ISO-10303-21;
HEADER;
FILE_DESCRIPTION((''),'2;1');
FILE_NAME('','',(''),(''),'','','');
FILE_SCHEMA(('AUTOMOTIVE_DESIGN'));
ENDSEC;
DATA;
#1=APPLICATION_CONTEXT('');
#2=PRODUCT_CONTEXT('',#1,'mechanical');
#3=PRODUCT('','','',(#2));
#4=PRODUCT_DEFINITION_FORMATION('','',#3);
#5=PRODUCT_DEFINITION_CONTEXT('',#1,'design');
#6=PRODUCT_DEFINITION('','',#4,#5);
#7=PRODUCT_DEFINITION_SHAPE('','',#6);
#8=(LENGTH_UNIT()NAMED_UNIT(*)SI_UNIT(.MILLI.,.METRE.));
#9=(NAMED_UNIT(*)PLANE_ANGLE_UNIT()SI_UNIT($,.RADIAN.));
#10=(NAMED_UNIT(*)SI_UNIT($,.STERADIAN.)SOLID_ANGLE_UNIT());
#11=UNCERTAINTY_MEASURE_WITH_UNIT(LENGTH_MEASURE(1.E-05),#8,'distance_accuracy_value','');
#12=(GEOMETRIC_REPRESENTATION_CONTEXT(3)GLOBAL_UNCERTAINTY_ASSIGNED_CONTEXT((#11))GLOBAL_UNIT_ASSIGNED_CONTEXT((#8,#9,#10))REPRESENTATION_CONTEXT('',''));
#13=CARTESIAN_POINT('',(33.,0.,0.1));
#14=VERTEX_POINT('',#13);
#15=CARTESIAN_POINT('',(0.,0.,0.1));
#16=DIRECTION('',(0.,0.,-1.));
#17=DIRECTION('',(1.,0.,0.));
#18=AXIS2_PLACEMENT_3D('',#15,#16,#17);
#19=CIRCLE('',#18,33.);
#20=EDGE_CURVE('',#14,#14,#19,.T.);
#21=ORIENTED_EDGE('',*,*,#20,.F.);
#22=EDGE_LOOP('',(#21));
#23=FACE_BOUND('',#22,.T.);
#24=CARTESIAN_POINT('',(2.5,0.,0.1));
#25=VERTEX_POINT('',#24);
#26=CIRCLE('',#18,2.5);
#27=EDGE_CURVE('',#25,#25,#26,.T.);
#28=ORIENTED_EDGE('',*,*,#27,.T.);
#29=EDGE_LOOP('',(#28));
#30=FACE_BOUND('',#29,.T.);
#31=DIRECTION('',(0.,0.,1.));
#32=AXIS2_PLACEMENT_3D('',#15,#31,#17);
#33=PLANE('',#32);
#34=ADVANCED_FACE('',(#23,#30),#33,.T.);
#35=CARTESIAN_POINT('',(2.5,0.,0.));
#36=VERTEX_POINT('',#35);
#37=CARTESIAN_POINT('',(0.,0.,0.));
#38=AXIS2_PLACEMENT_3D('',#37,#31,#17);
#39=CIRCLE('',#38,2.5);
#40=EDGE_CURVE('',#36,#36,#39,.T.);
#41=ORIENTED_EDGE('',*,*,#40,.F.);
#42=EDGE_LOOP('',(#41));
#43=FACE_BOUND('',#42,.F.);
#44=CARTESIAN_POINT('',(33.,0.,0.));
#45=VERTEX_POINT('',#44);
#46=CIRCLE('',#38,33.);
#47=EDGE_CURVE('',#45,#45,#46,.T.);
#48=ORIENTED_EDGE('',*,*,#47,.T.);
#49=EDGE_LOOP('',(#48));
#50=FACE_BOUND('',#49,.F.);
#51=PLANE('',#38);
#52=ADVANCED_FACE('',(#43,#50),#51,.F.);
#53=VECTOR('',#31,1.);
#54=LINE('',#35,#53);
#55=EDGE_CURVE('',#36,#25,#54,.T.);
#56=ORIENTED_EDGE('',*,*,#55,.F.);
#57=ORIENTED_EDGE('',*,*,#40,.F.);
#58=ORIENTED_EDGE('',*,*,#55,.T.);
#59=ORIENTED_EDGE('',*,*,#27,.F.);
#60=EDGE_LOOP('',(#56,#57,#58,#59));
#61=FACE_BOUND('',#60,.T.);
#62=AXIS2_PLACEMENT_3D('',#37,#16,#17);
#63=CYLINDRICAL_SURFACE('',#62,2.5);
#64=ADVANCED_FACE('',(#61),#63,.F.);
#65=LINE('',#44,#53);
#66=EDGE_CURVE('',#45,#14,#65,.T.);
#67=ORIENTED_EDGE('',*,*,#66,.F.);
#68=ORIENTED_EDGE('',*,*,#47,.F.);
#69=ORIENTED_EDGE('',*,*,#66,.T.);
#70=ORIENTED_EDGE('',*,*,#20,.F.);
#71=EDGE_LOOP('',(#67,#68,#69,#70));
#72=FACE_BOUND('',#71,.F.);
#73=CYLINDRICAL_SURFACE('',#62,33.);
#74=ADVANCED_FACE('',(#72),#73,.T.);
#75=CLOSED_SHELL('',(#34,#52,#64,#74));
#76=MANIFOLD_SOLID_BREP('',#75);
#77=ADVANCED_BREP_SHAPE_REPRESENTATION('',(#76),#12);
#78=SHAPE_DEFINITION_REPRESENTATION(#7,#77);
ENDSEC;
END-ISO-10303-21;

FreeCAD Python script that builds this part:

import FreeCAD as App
import Part
import Sketcher
from FreeCAD import Vector
Q = App.Units.Quantity

doc = App.newDocument("Part")
body = doc.addObject("PartDesign::Body", "Body")

# Sketch on XY plane
sketch1 = body.newObject("Sketcher::SketchObject", "Sketch")
sketch1.AttachmentSupport = (doc.getObject("XY_Plane"), [""])
sketch1.MapMode = "FlatFace"
sketch1.addGeometry([
    Part.Circle(Vector(0, 0, 0), Vector(0, 0, 1), 33),
    Part.Circle(Vector(0, 0, 0), Vector(0, 0, 1), 2.5),
], False)
sketch1.addConstraint([
    Sketcher.Constraint("Coincident", 0, 3, -1, 1),
    Sketcher.Constraint("Coincident", 1, 3, -1, 1),
    Sketcher.Constraint("Diameter", 0, Q("66 mm")),
    Sketcher.Constraint("Diameter", 1, Q("5 mm")),
])
pad1 = body.newObject("PartDesign::Pad", "Pad")
pad1.Profile = sketch1
pad1.Length = 0.1

doc.recompute()
